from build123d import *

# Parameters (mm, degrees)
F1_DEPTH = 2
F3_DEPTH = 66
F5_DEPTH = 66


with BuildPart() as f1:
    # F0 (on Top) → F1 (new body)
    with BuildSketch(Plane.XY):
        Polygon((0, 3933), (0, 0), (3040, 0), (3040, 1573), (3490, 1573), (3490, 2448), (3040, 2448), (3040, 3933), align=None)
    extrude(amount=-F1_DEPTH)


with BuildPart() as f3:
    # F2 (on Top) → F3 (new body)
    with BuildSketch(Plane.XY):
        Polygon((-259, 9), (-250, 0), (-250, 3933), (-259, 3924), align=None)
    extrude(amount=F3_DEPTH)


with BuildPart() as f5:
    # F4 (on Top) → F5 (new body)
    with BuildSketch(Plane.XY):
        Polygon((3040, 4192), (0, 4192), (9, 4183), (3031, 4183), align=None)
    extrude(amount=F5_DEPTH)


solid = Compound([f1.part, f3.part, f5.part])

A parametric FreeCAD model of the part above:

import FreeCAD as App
import Part
import Sketcher
from FreeCAD import Vector


def add_polygon(sketch, points):
    """Adds a closed chain of lines whose ends are joined by coincident constraints."""
    first, n = sketch.GeometryCount, len(points)
    for a, b in zip(points, points[1:] + points[:1]):
        sketch.addGeometry(Part.LineSegment(App.Vector(*a, 0), App.Vector(*b, 0)), False)
    for i in range(n):
        sketch.addConstraint(Sketcher.Constraint("Coincident", first + i, 2, first + (i + 1) % n, 1))

doc = App.newDocument("Part")
body = doc.addObject("PartDesign::Body", "Body")

sketch1 = doc.addObject("Sketcher::SketchObject", "Sketch")
body.addObject(sketch1)
sketch1.AttachmentSupport = (doc.XY_Plane, [""])
sketch1.MapMode = "FlatFace"
add_polygon(sketch1, [(0, 3933), (0, 0), (3040, 0), (3040, 1573), (3490, 1573), (3490, 2448), (3040, 2448), (3040, 3933)])
sketch1.addConstraint([
    Sketcher.Constraint("Vertical", 0),
    Sketcher.Constraint("Horizontal", 1),
    Sketcher.Constraint("Vertical", 2),
    Sketcher.Constraint("Horizontal", 3),
    Sketcher.Constraint("Vertical", 4),
    Sketcher.Constraint("Horizontal", 5),
    Sketcher.Constraint("Vertical", 6),
    Sketcher.Constraint("Horizontal", 7),
    Sketcher.Constraint("Coincident", 0, 2, -1, 1),
    Sketcher.Constraint("Vertical", 2, 2, 5, 2),
    Sketcher.Constraint("DistanceX", 1, 1, 1, 2, 3040.0),
    Sketcher.Constraint("DistanceX", 3, 1, 3, 2, 450.0),
    Sketcher.Constraint("DistanceY", 0, 2, 0, 1, 3933.0),
    Sketcher.Constraint("DistanceY", 2, 1, 2, 2, 1573.0),
    Sketcher.Constraint("DistanceY", 4, 1, 4, 2, 875.0),
])
pad1 = doc.addObject("PartDesign::Pad", "Pad")
body.addObject(pad1)
pad1.Profile = sketch1
pad1.Length = 2
pad1.Reversed = True
body2 = doc.addObject("PartDesign::Body", "Body001")

sketch2 = doc.addObject("Sketcher::SketchObject", "Sketch001")
body2.addObject(sketch2)
sketch2.AttachmentSupport = (doc.getObject("XY_Plane001"), [""])
sketch2.MapMode = "FlatFace"
add_polygon(sketch2, [(-259, 9), (-250, 0), (-250, 3933), (-259, 3924)])
sketch2.addConstraint([
    Sketcher.Constraint("Vertical", 1),
    Sketcher.Constraint("Vertical", 3),
    Sketcher.Constraint("PointOnObject", 0, 2, -1),
    Sketcher.Constraint("Perpendicular", 0, 2),
    Sketcher.Constraint("Equal", 0, 2),
    Sketcher.Constraint("DistanceY", 1, 1, 1, 2, 3933.0),
    Sketcher.Constraint("DistanceY", 3, 2, 3, 1, 3915.0),
    Sketcher.Constraint("DistanceX", 0, 2, -1, 1, 250.0),
])
pad2 = doc.addObject("PartDesign::Pad", "Pad001")
body2.addObject(pad2)
pad2.Profile = sketch2
pad2.Length = 66
body3 = doc.addObject("PartDesign::Body", "Body002")

sketch3 = doc.addObject("Sketcher::SketchObject", "Sketch002")
body3.addObject(sketch3)
sketch3.AttachmentSupport = (doc.getObject("XY_Plane002"), [""])
sketch3.MapMode = "FlatFace"
add_polygon(sketch3, [(3040, 4192), (0, 4192), (9, 4183), (3031, 4183)])
sketch3.addConstraint([
    Sketcher.Constraint("Horizontal", 0),
    Sketcher.Constraint("Horizontal", 2),
    Sketcher.Constraint("PointOnObject", 0, 2, -2),
    Sketcher.Constraint("Perpendicular", 1, 3),
    Sketcher.Constraint("Equal", 1, 3),
    Sketcher.Constraint("DistanceX", 0, 2, 0, 1, 3040.0),
    Sketcher.Constraint("DistanceX", 2, 1, 2, 2, 3022.0),
    Sketcher.Constraint("DistanceY", -1, 1, 0, 2, 4192.0),
])
pad3 = doc.addObject("PartDesign::Pad", "Pad002")
body3.addObject(pad3)
pad3.Profile = sketch3
pad3.Length = 66

doc.recompute()
